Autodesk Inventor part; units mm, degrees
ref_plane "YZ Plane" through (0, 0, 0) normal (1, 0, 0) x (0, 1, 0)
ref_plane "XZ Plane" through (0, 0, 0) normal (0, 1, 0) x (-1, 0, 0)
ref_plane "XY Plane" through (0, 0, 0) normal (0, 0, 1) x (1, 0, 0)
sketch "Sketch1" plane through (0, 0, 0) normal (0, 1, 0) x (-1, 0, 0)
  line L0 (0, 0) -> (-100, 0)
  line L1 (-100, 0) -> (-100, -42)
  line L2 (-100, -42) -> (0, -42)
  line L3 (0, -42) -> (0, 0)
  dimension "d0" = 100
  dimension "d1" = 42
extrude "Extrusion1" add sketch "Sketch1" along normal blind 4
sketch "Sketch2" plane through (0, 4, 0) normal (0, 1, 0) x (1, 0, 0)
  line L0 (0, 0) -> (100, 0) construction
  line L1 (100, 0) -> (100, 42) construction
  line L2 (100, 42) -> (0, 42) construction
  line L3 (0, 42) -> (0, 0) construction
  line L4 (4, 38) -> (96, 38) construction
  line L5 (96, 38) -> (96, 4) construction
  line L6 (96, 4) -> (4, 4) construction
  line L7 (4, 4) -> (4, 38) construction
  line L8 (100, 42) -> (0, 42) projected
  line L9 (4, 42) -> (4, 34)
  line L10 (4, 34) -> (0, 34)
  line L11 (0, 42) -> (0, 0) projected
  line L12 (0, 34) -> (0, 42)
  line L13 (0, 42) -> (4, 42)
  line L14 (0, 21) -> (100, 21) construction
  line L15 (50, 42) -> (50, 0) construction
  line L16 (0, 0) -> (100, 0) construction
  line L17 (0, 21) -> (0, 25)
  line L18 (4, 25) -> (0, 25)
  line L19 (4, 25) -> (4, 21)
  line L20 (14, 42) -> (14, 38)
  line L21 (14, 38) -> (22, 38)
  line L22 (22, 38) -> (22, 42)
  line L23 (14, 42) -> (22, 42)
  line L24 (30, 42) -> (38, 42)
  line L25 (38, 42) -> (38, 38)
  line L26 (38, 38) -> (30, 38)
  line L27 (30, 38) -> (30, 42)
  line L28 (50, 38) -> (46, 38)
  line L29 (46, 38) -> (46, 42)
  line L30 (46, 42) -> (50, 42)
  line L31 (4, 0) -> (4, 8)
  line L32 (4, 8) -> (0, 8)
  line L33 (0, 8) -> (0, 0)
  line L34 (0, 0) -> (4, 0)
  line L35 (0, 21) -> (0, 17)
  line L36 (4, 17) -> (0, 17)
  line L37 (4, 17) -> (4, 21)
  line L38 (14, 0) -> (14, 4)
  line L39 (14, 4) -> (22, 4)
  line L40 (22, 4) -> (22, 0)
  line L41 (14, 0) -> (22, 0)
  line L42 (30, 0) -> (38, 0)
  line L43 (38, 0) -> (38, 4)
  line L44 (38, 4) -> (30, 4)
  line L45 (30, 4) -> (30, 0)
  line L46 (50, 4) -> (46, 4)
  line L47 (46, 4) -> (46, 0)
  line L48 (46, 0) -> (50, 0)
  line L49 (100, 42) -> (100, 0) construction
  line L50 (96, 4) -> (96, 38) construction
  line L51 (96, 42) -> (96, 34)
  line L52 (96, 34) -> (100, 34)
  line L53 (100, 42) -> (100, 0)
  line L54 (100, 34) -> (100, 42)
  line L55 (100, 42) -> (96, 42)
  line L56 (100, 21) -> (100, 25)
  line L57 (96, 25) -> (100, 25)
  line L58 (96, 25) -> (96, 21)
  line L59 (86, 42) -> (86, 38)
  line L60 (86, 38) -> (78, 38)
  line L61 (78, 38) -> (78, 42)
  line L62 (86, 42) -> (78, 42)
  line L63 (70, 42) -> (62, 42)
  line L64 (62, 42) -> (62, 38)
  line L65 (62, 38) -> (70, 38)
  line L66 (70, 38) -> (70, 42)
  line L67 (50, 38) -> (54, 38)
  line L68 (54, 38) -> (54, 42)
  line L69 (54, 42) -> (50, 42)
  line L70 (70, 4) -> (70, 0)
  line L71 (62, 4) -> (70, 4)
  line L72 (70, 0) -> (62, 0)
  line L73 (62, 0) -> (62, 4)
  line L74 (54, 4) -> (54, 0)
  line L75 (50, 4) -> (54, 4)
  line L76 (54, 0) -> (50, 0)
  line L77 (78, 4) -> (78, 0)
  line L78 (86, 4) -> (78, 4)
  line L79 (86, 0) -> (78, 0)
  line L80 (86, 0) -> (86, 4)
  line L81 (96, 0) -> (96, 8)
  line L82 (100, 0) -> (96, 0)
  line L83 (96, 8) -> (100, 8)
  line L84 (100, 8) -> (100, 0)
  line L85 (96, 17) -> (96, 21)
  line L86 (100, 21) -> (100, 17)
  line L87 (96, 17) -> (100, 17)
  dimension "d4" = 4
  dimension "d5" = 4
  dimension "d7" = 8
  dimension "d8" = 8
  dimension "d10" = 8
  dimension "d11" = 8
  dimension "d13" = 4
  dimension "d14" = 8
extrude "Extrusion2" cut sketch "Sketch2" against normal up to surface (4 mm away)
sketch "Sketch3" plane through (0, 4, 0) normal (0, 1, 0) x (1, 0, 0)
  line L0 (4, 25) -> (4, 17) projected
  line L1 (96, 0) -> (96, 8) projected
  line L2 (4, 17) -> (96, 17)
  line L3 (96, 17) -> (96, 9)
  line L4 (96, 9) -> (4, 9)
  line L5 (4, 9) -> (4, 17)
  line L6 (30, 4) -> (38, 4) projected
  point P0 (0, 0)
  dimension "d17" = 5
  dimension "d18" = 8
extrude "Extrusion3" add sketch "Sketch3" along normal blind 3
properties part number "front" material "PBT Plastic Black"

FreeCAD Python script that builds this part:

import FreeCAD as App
import Part
import Sketcher


def add_polygon(sketch, points):
    """Adds a closed chain of lines whose ends are joined by coincident constraints."""
    first, n = sketch.GeometryCount, len(points)
    for a, b in zip(points, points[1:] + points[:1]):
        sketch.addGeometry(Part.LineSegment(App.Vector(*a, 0), App.Vector(*b, 0)), False)
    for i in range(n):
        sketch.addConstraint(Sketcher.Constraint("Coincident", first + i, 2, first + (i + 1) % n, 1))

doc = App.newDocument("Part")
body = doc.addObject("PartDesign::Body", "Body")

# Sketch on XZ plane
sketch1 = body.newObject("Sketcher::SketchObject", "Sketch")
sketch1.AttachmentSupport = (doc.getObject("XZ_Plane"), [""])
sketch1.MapMode = "FlatFace"
add_polygon(sketch1, [(0, -42), (0, 0), (100, 0), (100, -42)])  # lines 0-3
sketch1.addConstraint([
    Sketcher.Constraint("Vertical", 0),
    Sketcher.Constraint("Horizontal", 1),
    Sketcher.Constraint("Vertical", 2),
    Sketcher.Constraint("Horizontal", 3),
    Sketcher.Constraint("Coincident", 0, 2, -1, 1),
    Sketcher.Constraint("DistanceX", 1, 1, 1, 2, 100.0),
    Sketcher.Constraint("DistanceY", 0, 1, 0, 2, 42.0),
])
pad1 = body.newObject("PartDesign::Pad", "Pad")
pad1.Profile = sketch1
pad1.Length = 4
pad1.Reversed = True

# Sketch on XZ plane
sketch2 = body.newObject("Sketcher::SketchObject", "Sketch001")
sketch2.AttachmentSupport = (doc.getObject("XZ_Plane"), [""])
sketch2.MapMode = "FlatFace"
sketch2.AttachmentOffset = App.Placement(App.Vector(0, 0, -4), App.Rotation())
add_polygon(sketch2, [(100, -34), (100, -42), (96, -42), (96, -34)])  # lines 0-3
add_polygon(sketch2, [(100, 0), (100, -8), (96, -8), (96, 0)])  # lines 4-7
add_polygon(sketch2, [(100, -17), (100, -25), (96, -25), (96, -17)])  # lines 8-11
add_polygon(sketch2, [(4, -8), (0, -8), (0, 0), (4, 0)])  # lines 12-15
add_polygon(sketch2, [(4, -25), (0, -25), (0, -17), (4, -17)])  # lines 16-19
add_polygon(sketch2, [(4, -34), (4, -42), (0, -42), (0, -34)])  # lines 20-23
add_polygon(sketch2, [(22, -38), (22, -42), (14, -42), (14, -38)])  # lines 24-27
add_polygon(sketch2, [(38, -38), (38, -42), (30, -42), (30, -38)])  # lines 28-31
add_polygon(sketch2, [(54, -38), (54, -42), (46, -42), (46, -38)])  # lines 32-35
add_polygon(sketch2, [(70, -38), (70, -42), (62, -42), (62, -38)])  # lines 36-39
add_polygon(sketch2, [(86, -38), (86, -42), (78, -42), (78, -38)])  # lines 40-43
add_polygon(sketch2, [(14, -4), (14, 0), (22, 0), (22, -4)])  # lines 44-47
add_polygon(sketch2, [(30, -4), (30, 0), (38, 0), (38, -4)])  # lines 48-51
add_polygon(sketch2, [(54, -4), (46, -4), (46, 0), (54, 0)])  # lines 52-55
add_polygon(sketch2, [(70, 0), (70, -4), (62, -4), (62, 0)])  # lines 56-59
add_polygon(sketch2, [(86, -4), (78, -4), (78, 0), (86, 0)])  # lines 60-63
sketch2.addConstraint([
    Sketcher.Constraint("Vertical", 0),
    Sketcher.Constraint("Horizontal", 1),
    Sketcher.Constraint("Vertical", 2),
    Sketcher.Constraint("Horizontal", 3),
    Sketcher.Constraint("Vertical", 4),
    Sketcher.Constraint("Horizontal", 5),
    Sketcher.Constraint("Vertical", 6),
    Sketcher.Constraint("Horizontal", 7),
    Sketcher.Constraint("Vertical", 8),
    Sketcher.Constraint("Horizontal", 9),
    Sketcher.Constraint("Vertical", 10),
    Sketcher.Constraint("Horizontal", 11),
    Sketcher.Constraint("Horizontal", 12),
    Sketcher.Constraint("Vertical", 13),
    Sketcher.Constraint("Horizontal", 14),
    Sketcher.Constraint("Vertical", 15),
    Sketcher.Constraint("Horizontal", 16),
    Sketcher.Constraint("Vertical", 17),
    Sketcher.Constraint("Horizontal", 18),
    Sketcher.Constraint("Vertical", 19),
    Sketcher.Constraint("Vertical", 20),
    Sketcher.Constraint("Horizontal", 21),
    Sketcher.Constraint("Vertical", 22),
    Sketcher.Constraint("Horizontal", 23),
    Sketcher.Constraint("Vertical", 24),
    Sketcher.Constraint("Horizontal", 25),
    Sketcher.Constraint("Vertical", 26),
    Sketcher.Constraint("Horizontal", 27),
    Sketcher.Constraint("Vertical", 28),
    Sketcher.Constraint("Horizontal", 29),
    Sketcher.Constraint("Vertical", 30),
    Sketcher.Constraint("Horizontal", 31),
    Sketcher.Constraint("Vertical", 32),
    Sketcher.Constraint("Horizontal", 33),
    Sketcher.Constraint("Vertical", 34),
    Sketcher.Constraint("Horizontal", 35),
    Sketcher.Constraint("Vertical", 36),
    Sketcher.Constraint("Horizontal", 37),
    Sketcher.Constraint("Vertical", 38),
    Sketcher.Constraint("Horizontal", 39),
    Sketcher.Constraint("Vertical", 40),
    Sketcher.Constraint("Horizontal", 41),
    Sketcher.Constraint("Vertical", 42),
    Sketcher.Constraint("Horizontal", 43),
    Sketcher.Constraint("Vertical", 44),
    Sketcher.Constraint("Horizontal", 45),
    Sketcher.Constraint("Vertical", 46),
    Sketcher.Constraint("Horizontal", 47),
    Sketcher.Constraint("Vertical", 48),
    Sketcher.Constraint("Horizontal", 49),
    Sketcher.Constraint("Vertical", 50),
    Sketcher.Constraint("Horizontal", 51),
    Sketcher.Constraint("Horizontal", 52),
    Sketcher.Constraint("Vertical", 53),
    Sketcher.Constraint("Horizontal", 54),
    Sketcher.Constraint("Vertical", 55),
    Sketcher.Constraint("Vertical", 56),
    Sketcher.Constraint("Horizontal", 57),
    Sketcher.Constraint("Vertical", 58),
    Sketcher.Constraint("Horizontal", 59),
    Sketcher.Constraint("Horizontal", 60),
    Sketcher.Constraint("Vertical", 61),
    Sketcher.Constraint("Horizontal", 62),
    Sketcher.Constraint("Vertical", 63),
    Sketcher.Constraint("Coincident", 13, 2, -1, 1),
    Sketcher.Constraint("PointOnObject", 6, 2, -1),
    Sketcher.Constraint("PointOnObject", 16, 2, -2),
    Sketcher.Constraint("PointOnObject", 21, 2, -2),
    Sketcher.Constraint("PointOnObject", 44, 2, -1),
    Sketcher.Constraint("PointOnObject", 48, 2, -1),
    Sketcher.Constraint("PointOnObject", 53, 2, -1),
    Sketcher.Constraint("PointOnObject", 58, 2, -1),
    Sketcher.Constraint("PointOnObject", 61, 2, -1),
    Sketcher.Constraint("Horizontal", 5, 2, 12, 2),
    Sketcher.Constraint("Horizontal", 9, 2, 16, 2),
    Sketcher.Constraint("Horizontal", 11, 2, 17, 2),
    Sketcher.Constraint("Horizontal", 1, 2, 20, 2),
    Sketcher.Constraint("Horizontal", 3, 2, 22, 2),
    Sketcher.Constraint("Horizontal", 21, 2, 24, 2),
    Sketcher.Constraint("Horizontal", 25, 2, 28, 2),
    Sketcher.Constraint("Horizontal", 27, 2, 30, 2),
    Sketcher.Constraint("Horizontal", 29, 2, 32, 2),
    Sketcher.Constraint("Horizontal", 31, 2, 34, 2),
    Sketcher.Constraint("Horizontal", 33, 2, 36, 2),
    Sketcher.Constraint("Horizontal", 35, 2, 38, 2),
    Sketcher.Constraint("Horizontal", 37, 2, 40, 2),
    Sketcher.Constraint("Horizontal", 39, 2, 42, 2),
    Sketcher.Constraint("Horizontal", 47, 2, 50, 2),
    Sketcher.Constraint("Horizontal", 51, 2, 52, 2),
    Sketcher.Constraint("Horizontal", 55, 2, 56, 2),
    Sketcher.Constraint("Horizontal", 57, 2, 60, 2),
    Sketcher.Constraint("Vertical", 3, 2, 4, 2),
    Sketcher.Constraint("Vertical", 2, 2, 5, 2),
    Sketcher.Constraint("Vertical", 7, 2, 8, 2),
    Sketcher.Constraint("Vertical", 6, 2, 9, 2),
    Sketcher.Constraint("Vertical", 15, 2, 18, 2),
    Sketcher.Constraint("Vertical", 19, 2, 20, 2),
    Sketcher.Constraint("Vertical", 26, 2, 44, 2),
    Sketcher.Constraint("Vertical", 27, 2, 45, 2),
    Sketcher.Constraint("Vertical", 30, 2, 48, 2),
    Sketcher.Constraint("Vertical", 31, 2, 49, 2),
    Sketcher.Constraint("Vertical", 34, 2, 52, 2),
    Sketcher.Constraint("Vertical", 35, 2, 54, 2),
    Sketcher.Constraint("Vertical", 39, 2, 56, 2),
    Sketcher.Constraint("Vertical", 38, 2, 57, 2),
    Sketcher.Constraint("Vertical", 42, 2, 60, 2),
    Sketcher.Constraint("Vertical", 43, 2, 62, 2),
    Sketcher.Constraint("Equal", 11, 12),
    Sketcher.Constraint("Equal", 27, 29),
    Sketcher.Constraint("Equal", 31, 33),
    Sketcher.Constraint("Equal", 35, 37),
    Sketcher.Constraint("Equal", 39, 41),
    Sketcher.Constraint("Equal", 62, 0),
    Sketcher.Constraint("Equal", 2, 4),
    Sketcher.Constraint("Equal", 6, 8),
    Sketcher.Constraint("Equal", 23, 24),
    Sketcher.Constraint("Equal", 42, 44),
    Sketcher.Constraint("DistanceX", 1, 2, 1, 1, 4.0),
    Sketcher.Constraint("DistanceX", 25, 2, 25, 1, 8.0),
    Sketcher.Constraint("DistanceX", -1, 1, 0, 2, 100.0),
    Sketcher.Constraint("DistanceY", 0, 2, -1, 1, 42.0),
    Sketcher.Constraint("DistanceY", 8, 2, -1, 1, 25.0),
    Sketcher.Constraint("DistanceX", -1, 1, 24, 2, 22.0),
    Sketcher.Constraint("DistanceX", -1, 1, 28, 2, 38.0),
    Sketcher.Constraint("DistanceX", -1, 1, 32, 2, 54.0),
    Sketcher.Constraint("DistanceX", -1, 1, 36, 2, 70.0),
    Sketcher.Constraint("DistanceX", -1, 1, 40, 2, 86.0),
])
pocket1 = body.newObject("PartDesign::Pocket", "Pocket")
pocket1.Profile = sketch2
pocket1.Length = 4
pocket1.Reversed = True

# Sketch on XZ plane
sketch3 = body.newObject("Sketcher::SketchObject", "Sketch002")
sketch3.AttachmentSupport = (doc.getObject("XZ_Plane"), [""])
sketch3.MapMode = "FlatFace"
sketch3.AttachmentOffset = App.Placement(App.Vector(0, 0, -4), App.Rotation())
add_polygon(sketch3, [(96, -17), (4, -17), (4, -9), (96, -9)])  # lines 0-3
sketch3.addConstraint([
    Sketcher.Constraint("Horizontal", 0),
    Sketcher.Constraint("Vertical", 1),
    Sketcher.Constraint("Horizontal", 2),
    Sketcher.Constraint("Vertical", 3),
    Sketcher.Constraint("DistanceY", 1, 1, 1, 2, 8.0),
    Sketcher.Constraint("DistanceX", 0, 2, 0, 1, 92.0),
    Sketcher.Constraint("DistanceX", -1, 1, 0, 2, 4.0),
    Sketcher.Constraint("DistanceY", 0, 2, -1, 1, 17.0),
])
pad2 = body.newObject("PartDesign::Pad", "Pad001")
pad2.Profile = sketch3
pad2.Length = 3
pad2.Reversed = True

doc.recompute()
